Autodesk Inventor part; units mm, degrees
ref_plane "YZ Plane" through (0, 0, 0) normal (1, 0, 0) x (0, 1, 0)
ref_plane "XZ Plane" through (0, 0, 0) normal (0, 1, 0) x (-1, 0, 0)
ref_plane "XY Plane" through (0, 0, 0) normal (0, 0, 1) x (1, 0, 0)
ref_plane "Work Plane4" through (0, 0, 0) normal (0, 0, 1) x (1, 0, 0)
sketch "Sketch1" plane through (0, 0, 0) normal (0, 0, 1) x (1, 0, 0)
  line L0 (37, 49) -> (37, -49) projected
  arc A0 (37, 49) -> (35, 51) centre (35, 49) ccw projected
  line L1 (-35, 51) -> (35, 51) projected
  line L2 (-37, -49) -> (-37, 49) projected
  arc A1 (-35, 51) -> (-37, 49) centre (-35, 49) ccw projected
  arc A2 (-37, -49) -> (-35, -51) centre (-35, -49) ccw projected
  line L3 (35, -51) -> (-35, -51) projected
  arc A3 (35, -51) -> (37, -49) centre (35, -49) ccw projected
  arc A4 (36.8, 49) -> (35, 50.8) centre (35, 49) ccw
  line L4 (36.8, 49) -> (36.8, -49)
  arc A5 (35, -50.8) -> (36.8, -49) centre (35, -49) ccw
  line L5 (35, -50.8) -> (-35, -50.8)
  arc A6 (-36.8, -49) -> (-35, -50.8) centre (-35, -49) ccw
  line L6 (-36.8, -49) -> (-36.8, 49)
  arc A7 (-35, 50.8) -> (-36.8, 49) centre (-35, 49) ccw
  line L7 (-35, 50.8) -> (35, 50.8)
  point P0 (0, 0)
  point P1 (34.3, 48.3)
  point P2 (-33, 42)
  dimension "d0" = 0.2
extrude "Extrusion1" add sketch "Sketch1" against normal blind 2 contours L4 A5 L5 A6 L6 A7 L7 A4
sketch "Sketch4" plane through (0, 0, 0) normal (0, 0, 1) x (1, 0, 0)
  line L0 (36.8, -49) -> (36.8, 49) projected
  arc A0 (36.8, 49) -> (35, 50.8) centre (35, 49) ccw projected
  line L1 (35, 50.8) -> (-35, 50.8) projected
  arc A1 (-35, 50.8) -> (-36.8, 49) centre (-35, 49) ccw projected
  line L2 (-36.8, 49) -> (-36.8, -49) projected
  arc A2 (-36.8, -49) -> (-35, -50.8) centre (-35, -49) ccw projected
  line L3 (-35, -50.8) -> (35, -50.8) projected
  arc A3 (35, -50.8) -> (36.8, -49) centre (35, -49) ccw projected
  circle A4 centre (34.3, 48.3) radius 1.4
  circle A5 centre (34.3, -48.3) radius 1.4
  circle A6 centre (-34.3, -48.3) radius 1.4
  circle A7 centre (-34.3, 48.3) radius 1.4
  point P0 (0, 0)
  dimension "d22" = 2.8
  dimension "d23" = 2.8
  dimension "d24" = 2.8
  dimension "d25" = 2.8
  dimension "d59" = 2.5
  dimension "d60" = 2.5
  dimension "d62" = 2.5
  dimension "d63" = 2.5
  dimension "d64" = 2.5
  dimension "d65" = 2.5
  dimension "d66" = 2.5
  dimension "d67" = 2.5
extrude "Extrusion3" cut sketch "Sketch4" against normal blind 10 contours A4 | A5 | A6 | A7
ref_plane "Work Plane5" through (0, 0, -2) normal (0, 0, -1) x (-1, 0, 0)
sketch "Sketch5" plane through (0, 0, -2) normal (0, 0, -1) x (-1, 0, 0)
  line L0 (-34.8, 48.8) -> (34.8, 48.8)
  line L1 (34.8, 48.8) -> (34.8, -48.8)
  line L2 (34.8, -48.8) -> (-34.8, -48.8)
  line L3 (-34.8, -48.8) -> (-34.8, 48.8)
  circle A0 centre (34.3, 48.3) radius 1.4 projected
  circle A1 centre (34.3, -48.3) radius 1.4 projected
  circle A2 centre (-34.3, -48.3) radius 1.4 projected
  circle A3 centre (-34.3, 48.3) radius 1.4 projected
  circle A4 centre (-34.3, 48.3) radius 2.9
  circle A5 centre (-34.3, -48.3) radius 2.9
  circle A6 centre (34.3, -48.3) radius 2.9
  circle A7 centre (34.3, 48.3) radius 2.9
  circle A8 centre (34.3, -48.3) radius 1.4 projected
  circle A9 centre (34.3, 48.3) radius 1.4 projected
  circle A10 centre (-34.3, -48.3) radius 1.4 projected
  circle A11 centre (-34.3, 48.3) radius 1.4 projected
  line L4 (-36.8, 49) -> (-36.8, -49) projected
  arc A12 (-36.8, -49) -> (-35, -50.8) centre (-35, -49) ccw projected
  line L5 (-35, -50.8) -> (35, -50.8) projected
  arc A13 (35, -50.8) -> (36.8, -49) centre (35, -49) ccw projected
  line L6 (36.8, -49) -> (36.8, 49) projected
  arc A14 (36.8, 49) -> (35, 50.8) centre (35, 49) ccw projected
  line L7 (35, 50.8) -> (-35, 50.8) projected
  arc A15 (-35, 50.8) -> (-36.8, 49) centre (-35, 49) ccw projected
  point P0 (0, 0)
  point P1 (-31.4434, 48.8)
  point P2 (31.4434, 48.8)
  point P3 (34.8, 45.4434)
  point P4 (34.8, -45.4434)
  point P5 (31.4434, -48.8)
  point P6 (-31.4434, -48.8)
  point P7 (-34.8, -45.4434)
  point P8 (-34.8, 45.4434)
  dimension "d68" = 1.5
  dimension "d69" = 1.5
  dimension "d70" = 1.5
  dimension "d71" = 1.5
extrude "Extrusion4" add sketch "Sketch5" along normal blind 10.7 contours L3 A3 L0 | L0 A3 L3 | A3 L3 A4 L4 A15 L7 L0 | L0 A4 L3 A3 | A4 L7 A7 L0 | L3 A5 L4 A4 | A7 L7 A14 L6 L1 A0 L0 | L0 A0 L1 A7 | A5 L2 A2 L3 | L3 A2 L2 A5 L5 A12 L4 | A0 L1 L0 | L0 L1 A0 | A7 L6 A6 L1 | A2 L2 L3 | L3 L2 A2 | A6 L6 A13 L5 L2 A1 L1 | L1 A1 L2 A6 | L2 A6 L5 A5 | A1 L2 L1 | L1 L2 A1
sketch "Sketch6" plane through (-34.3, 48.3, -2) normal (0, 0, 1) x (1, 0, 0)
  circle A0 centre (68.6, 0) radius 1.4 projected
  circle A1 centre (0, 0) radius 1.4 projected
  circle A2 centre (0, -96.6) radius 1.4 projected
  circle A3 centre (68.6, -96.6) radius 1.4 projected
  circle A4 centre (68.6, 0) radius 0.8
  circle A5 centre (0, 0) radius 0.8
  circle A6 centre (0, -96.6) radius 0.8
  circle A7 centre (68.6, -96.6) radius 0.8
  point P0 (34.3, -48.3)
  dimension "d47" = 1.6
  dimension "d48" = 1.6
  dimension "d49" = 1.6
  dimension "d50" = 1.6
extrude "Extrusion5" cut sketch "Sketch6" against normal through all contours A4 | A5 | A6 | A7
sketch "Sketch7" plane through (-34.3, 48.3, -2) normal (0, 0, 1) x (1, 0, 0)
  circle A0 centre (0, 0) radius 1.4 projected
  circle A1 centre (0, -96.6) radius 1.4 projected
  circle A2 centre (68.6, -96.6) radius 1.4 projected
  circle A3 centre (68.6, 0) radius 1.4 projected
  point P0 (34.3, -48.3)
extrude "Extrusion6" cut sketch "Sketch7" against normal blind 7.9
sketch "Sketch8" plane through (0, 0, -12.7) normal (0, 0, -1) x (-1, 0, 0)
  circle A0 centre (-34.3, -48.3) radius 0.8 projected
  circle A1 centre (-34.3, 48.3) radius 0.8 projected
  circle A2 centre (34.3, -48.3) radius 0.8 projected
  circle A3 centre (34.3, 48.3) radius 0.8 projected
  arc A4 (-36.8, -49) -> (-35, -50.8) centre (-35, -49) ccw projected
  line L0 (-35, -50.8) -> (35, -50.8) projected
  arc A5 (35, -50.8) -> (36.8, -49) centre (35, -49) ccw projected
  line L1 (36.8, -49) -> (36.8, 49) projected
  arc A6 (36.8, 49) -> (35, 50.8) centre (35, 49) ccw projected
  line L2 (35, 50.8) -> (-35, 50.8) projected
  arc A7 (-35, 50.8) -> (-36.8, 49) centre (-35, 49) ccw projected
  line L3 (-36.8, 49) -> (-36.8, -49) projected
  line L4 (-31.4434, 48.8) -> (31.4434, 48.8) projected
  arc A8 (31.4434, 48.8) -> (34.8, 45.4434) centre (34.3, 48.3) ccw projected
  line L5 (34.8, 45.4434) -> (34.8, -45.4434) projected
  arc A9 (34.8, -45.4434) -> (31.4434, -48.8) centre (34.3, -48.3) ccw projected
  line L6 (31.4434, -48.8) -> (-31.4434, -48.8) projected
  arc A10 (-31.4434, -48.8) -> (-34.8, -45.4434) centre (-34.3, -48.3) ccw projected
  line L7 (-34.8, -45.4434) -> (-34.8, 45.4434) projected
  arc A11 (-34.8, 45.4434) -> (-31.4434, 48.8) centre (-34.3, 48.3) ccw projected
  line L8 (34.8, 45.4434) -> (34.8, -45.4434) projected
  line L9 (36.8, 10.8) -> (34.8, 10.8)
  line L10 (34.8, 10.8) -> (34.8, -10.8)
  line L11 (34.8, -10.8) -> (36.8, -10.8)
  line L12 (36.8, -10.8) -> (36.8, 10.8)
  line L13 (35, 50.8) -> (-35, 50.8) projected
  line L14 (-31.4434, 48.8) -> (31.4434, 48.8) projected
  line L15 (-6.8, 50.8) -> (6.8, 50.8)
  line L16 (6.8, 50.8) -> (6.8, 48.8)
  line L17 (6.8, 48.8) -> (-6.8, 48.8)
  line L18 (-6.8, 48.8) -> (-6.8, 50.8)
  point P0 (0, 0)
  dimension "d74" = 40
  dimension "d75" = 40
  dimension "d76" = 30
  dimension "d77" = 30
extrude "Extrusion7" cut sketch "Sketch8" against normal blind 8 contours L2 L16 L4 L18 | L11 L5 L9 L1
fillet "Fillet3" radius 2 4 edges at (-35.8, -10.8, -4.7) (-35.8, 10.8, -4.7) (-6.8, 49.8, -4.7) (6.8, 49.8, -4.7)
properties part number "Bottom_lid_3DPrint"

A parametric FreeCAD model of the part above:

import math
import FreeCAD as App
import Part
import Sketcher

V = App.Vector


def edges_at(feature, points):
    """Names of the edges that pass closest to the given points."""
    edges = feature.Shape.Edges
    near = lambda p: min(range(len(edges)), key=lambda i: edges[i].distToShape(Part.Vertex(*p))[0])
    return sorted({f"Edge{near(p) + 1}" for p in points})


def add_polygon(sketch, points):
    """Adds a closed chain of lines whose ends are joined by coincident constraints."""
    first, n = sketch.GeometryCount, len(points)
    for a, b in zip(points, points[1:] + points[:1]):
        sketch.addGeometry(Part.LineSegment(App.Vector(*a, 0), App.Vector(*b, 0)), False)
    for i in range(n):
        sketch.addConstraint(Sketcher.Constraint("Coincident", first + i, 2, first + (i + 1) % n, 1))

doc = App.newDocument("Part")
body = doc.addObject("PartDesign::Body", "Body")

sketch1 = body.newObject("Sketcher::SketchObject", "Sketch")
sketch1.AttachmentSupport = (doc.getObject("XY_Plane"), [""])
sketch1.MapMode = "FlatFace"
sketch1.addGeometry([
    Part.LineSegment(V(36.8, -49, 0), V(36.8, 49, 0)),
    Part.ArcOfCircle(Part.Circle(V(35, 49, 0), V(0, 0, 1), 1.8), math.radians(0), math.radians(90)),
    Part.LineSegment(V(35, 50.8, 0), V(-35, 50.8, 0)),
    Part.ArcOfCircle(Part.Circle(V(-35, 49, 0), V(0, 0, 1), 1.8), math.radians(90), math.radians(180)),
    Part.LineSegment(V(-36.8, 49, 0), V(-36.8, -49, 0)),
    Part.ArcOfCircle(Part.Circle(V(-35, -49, 0), V(0, 0, 1), 1.8), math.radians(180), math.radians(270)),
    Part.LineSegment(V(-35, -50.8, 0), V(35, -50.8, 0)),
    Part.ArcOfCircle(Part.Circle(V(35, -49, 0), V(0, 0, 1), 1.8), math.radians(-90), math.radians(0)),
], False)
sketch1.addConstraint([
    Sketcher.Constraint("Tangent", 0, 2, 1, 1),
    Sketcher.Constraint("Tangent", 1, 2, 2, 1),
    Sketcher.Constraint("Tangent", 2, 2, 3, 1),
    Sketcher.Constraint("Tangent", 3, 2, 4, 1),
    Sketcher.Constraint("Tangent", 4, 2, 5, 1),
    Sketcher.Constraint("Tangent", 5, 2, 6, 1),
    Sketcher.Constraint("Tangent", 6, 2, 7, 1),
    Sketcher.Constraint("Tangent", 7, 2, 0, 1),
    Sketcher.Constraint("Vertical", 0),
    Sketcher.Constraint("Horizontal", 2),
    Sketcher.Constraint("Vertical", 4),
    Sketcher.Constraint("Horizontal", 6),
    Sketcher.Constraint("Equal", 1, 3),
    Sketcher.Constraint("Equal", 3, 5),
    Sketcher.Constraint("Equal", 5, 7),
    Sketcher.Constraint("Symmetric", 1, 3, 5, 3, -1, 1),
    Sketcher.Constraint("Radius", 1, 1.8),
    Sketcher.Constraint("DistanceX", 2, 2, 2, 1, 70.0),
    Sketcher.Constraint("DistanceY", 0, 1, 0, 2, 98.0),
])
pad1 = body.newObject("PartDesign::Pad", "Pad")
pad1.Profile = sketch1
pad1.Length = 2
pad1.Reversed = True

sketch2 = body.newObject("Sketcher::SketchObject", "Sketch001")
sketch2.AttachmentSupport = (doc.getObject("XY_Plane"), [""])
sketch2.MapMode = "FlatFace"
sketch2.addGeometry([
    Part.Circle(V(34.3, 48.3, 0), V(0, 0, 1), 1.4),
    Part.Circle(V(34.3, -48.3, 0), V(0, 0, 1), 1.4),
    Part.Circle(V(-34.3, -48.3, 0), V(0, 0, 1), 1.4),
    Part.Circle(V(-34.3, 48.3, 0), V(0, 0, 1), 1.4),
], False)
sketch2.addConstraint([
    Sketcher.Constraint("Equal", 0, 1),
    Sketcher.Constraint("Equal", 1, 2),
    Sketcher.Constraint("Equal", 2, 3),
    Sketcher.Constraint("Symmetric", 0, 3, 2, 3, -1, 1),
    Sketcher.Constraint("Symmetric", 1, 3, 3, 3, -1, 1),
    Sketcher.Constraint("Symmetric", 1, 3, 2, 3, -2),
    Sketcher.Constraint("Diameter", 0, 2.8),
    Sketcher.Constraint("DistanceX", -1, 1, 0, 3, 34.3),
    Sketcher.Constraint("DistanceY", -1, 1, 0, 3, 48.3),
])
pocket1 = body.newObject("PartDesign::Pocket", "Pocket")
pocket1.Profile = sketch2
pocket1.Length = 10

sketch3 = body.newObject("Sketcher::SketchObject", "Sketch002")
sketch3.AttachmentSupport = (doc.getObject("XY_Plane"), [""])
sketch3.MapMode = "FlatFace"
sketch3.AttachmentOffset = App.Placement(V(0, 0, -2), App.Rotation())
sketch3.addGeometry([
    Part.LineSegment(V(36.8, 49, 0), V(36.8, -49, 0)),
    Part.ArcOfCircle(Part.Circle(V(35, -49, 0), V(0, 0, 1), 1.8), math.radians(-90), math.radians(0)),
    Part.LineSegment(V(35, -50.8, 0), V(-35, -50.8, 0)),
    Part.ArcOfCircle(Part.Circle(V(-35, -49, 0), V(0, 0, 1), 1.8), math.radians(180), math.radians(270)),
    Part.LineSegment(V(-36.8, -49, 0), V(-36.8, 49, 0)),
    Part.ArcOfCircle(Part.Circle(V(-35, 49, 0), V(0, 0, 1), 1.8), math.radians(90), math.radians(180)),
    Part.LineSegment(V(-35, 50.8, 0), V(35, 50.8, 0)),
    Part.ArcOfCircle(Part.Circle(V(35, 49, 0), V(0, 0, 1), 1.8), math.radians(0), math.radians(90)),
    Part.ArcOfCircle(Part.Circle(V(34.3, 48.3, 0), V(0, 0, 1), 2.9), math.radians(170.071808), math.radians(279.928192)),
    Part.LineSegment(V(31.443429, 48.8, 0), V(-31.443429, 48.8, 0)),
    Part.ArcOfCircle(Part.Circle(V(-34.3, 48.3, 0), V(0, 0, 1), 2.9), math.radians(-99.928192), math.radians(9.928192)),
    Part.LineSegment(V(-34.8, 45.443429, 0), V(-34.8, -45.443429, 0)),
    Part.ArcOfCircle(Part.Circle(V(-34.3, -48.3, 0), V(0, 0, 1), 2.9), math.radians(-9.928192), math.radians(99.928192)),
    Part.LineSegment(V(-31.443429, -48.8, 0), V(31.443429, -48.8, 0)),
    Part.ArcOfCircle(Part.Circle(V(34.3, -48.3, 0), V(0, 0, 1), 2.9), math.radians(80.071808), math.radians(189.928192)),
    Part.LineSegment(V(34.8, -45.443429, 0), V(34.8, 45.443429, 0)),
], False)
sketch3.addConstraint([
    Sketcher.Constraint("Tangent", 0, 2, 1, 2),
    Sketcher.Constraint("Tangent", 1, 1, 2, 1),
    Sketcher.Constraint("Tangent", 2, 2, 3, 2),
    Sketcher.Constraint("Tangent", 3, 1, 4, 1),
    Sketcher.Constraint("Tangent", 4, 2, 5, 2),
    Sketcher.Constraint("Tangent", 5, 1, 6, 1),
    Sketcher.Constraint("Tangent", 6, 2, 7, 2),
    Sketcher.Constraint("Tangent", 7, 1, 0, 1),
    Sketcher.Constraint("Coincident", 8, 1, 9, 1),
    Sketcher.Constraint("Coincident", 9, 2, 10, 2),
    Sketcher.Constraint("Coincident", 10, 1, 11, 1),
    Sketcher.Constraint("Coincident", 11, 2, 12, 2),
    Sketcher.Constraint("Coincident", 12, 1, 13, 1),
    Sketcher.Constraint("Coincident", 13, 2, 14, 2),
    Sketcher.Constraint("Coincident", 14, 1, 15, 1),
    Sketcher.Constraint("Coincident", 15, 2, 8, 2),
    Sketcher.Constraint("Vertical", 0),
    Sketcher.Constraint("Horizontal", 2),
    Sketcher.Constraint("Vertical", 4),
    Sketcher.Constraint("Horizontal", 6),
    Sketcher.Constraint("Horizontal", 9),
    Sketcher.Constraint("Vertical", 11),
    Sketcher.Constraint("Horizontal", 13),
    Sketcher.Constraint("Vertical", 15),
    Sketcher.Constraint("Equal", 1, 3),
    Sketcher.Constraint("Equal", 3, 5),
    Sketcher.Constraint("Equal", 5, 7),
    Sketcher.Constraint("Equal", 8, 10),
    Sketcher.Constraint("Equal", 10, 12),
    Sketcher.Constraint("Equal", 12, 14),
    Sketcher.Constraint("Symmetric", 1, 3, 5, 3, -1, 1),
    Sketcher.Constraint("Symmetric", 8, 3, 12, 3, -1, 1),
    Sketcher.Constraint("Symmetric", 10, 3, 14, 3, -1, 1),
    Sketcher.Constraint("Symmetric", 8, 3, 10, 3, -2),
    Sketcher.Constraint("Horizontal", 11, 2, 14, 1),
    Sketcher.Constraint("Vertical", 9, 2, 12, 1),
    Sketcher.Constraint("Radius", 1, 1.8),
    Sketcher.Constraint("Radius", 8, 2.9),
    Sketcher.Constraint("DistanceX", 2, 2, 2, 1, 70.0),
    Sketcher.Constraint("DistanceY", 0, 2, 0, 1, 98.0),
    Sketcher.Constraint("DistanceY", 8, 1, 6, 2, 2.0),
    Sketcher.Constraint("DistanceX", 4, 2, 10, 1, 2.0),
    Sketcher.Constraint("DistanceX", -1, 1, 8, 3, 34.3),
    Sketcher.Constraint("DistanceY", -1, 1, 8, 3, 48.3),
])
pad2 = body.newObject("PartDesign::Pad", "Pad001")
pad2.Profile = sketch3
pad2.Length = 10.7
pad2.Reversed = True

sketch4 = body.newObject("Sketcher::SketchObject", "Sketch003")
sketch4.AttachmentSupport = (doc.getObject("XY_Plane"), [""])
sketch4.MapMode = "FlatFace"
sketch4.AttachmentOffset = App.Placement(V(0, 0, -2), App.Rotation())
sketch4.addGeometry([
    Part.Circle(V(34.3, 48.3, 0), V(0, 0, 1), 0.8),
    Part.Circle(V(-34.3, 48.3, 0), V(0, 0, 1), 0.8),
    Part.Circle(V(-34.3, -48.3, 0), V(0, 0, 1), 0.8),
    Part.Circle(V(34.3, -48.3, 0), V(0, 0, 1), 0.8),
], False)
sketch4.addConstraint([
    Sketcher.Constraint("Equal", 0, 1),
    Sketcher.Constraint("Equal", 1, 2),
    Sketcher.Constraint("Equal", 2, 3),
    Sketcher.Constraint("Symmetric", 0, 3, 2, 3, -1, 1),
    Sketcher.Constraint("Symmetric", 1, 3, 3, 3, -1, 1),
    Sketcher.Constraint("Symmetric", 0, 3, 1, 3, -2),
    Sketcher.Constraint("Diameter", 0, 1.6),
    Sketcher.Constraint("DistanceX", -1, 1, 0, 3, 34.3),
    Sketcher.Constraint("DistanceY", -1, 1, 0, 3, 48.3),
])
pocket2 = body.newObject("PartDesign::Pocket", "Pocket001")
pocket2.Profile = sketch4
pocket2.Type = "ThroughAll"

sketch5 = body.newObject("Sketcher::SketchObject", "Sketch004")
sketch5.AttachmentSupport = (doc.getObject("XY_Plane"), [""])
sketch5.MapMode = "FlatFace"
sketch5.AttachmentOffset = App.Placement(V(0, 0, -2), App.Rotation())
sketch5.addGeometry([
    Part.Circle(V(-34.3, 48.3, 0), V(0, 0, 1), 1.4),
    Part.Circle(V(-34.3, -48.3, 0), V(0, 0, 1), 1.4),
    Part.Circle(V(34.3, -48.3, 0), V(0, 0, 1), 1.4),
    Part.Circle(V(34.3, 48.3, 0), V(0, 0, 1), 1.4),
], False)
sketch5.addConstraint([
    Sketcher.Constraint("Equal", 0, 1),
    Sketcher.Constraint("Equal", 1, 2),
    Sketcher.Constraint("Equal", 2, 3),
    Sketcher.Constraint("Symmetric", 0, 3, 2, 3, -1, 1),
    Sketcher.Constraint("Symmetric", 1, 3, 3, 3, -1, 1),
    Sketcher.Constraint("Symmetric", 1, 3, 2, 3, -2),
    Sketcher.Constraint("Diameter", 0, 2.8),
    Sketcher.Constraint("DistanceX", 0, 3, -1, 1, 34.3),
    Sketcher.Constraint("DistanceY", -1, 1, 0, 3, 48.3),
])
pocket3 = body.newObject("PartDesign::Pocket", "Pocket002")
pocket3.Profile = sketch5
pocket3.Length = 7.9

sketch6 = body.newObject("Sketcher::SketchObject", "Sketch005")
sketch6.AttachmentSupport = (doc.getObject("XY_Plane"), [""])
sketch6.MapMode = "FlatFace"
sketch6.AttachmentOffset = App.Placement(V(0, 0, -12.7), App.Rotation())
add_polygon(sketch6, [(-6.8, 50.8), (6.8, 50.8), (6.8, 48.8), (-6.8, 48.8)])
add_polygon(sketch6, [(-34.8, -10.8), (-36.8, -10.8), (-36.8, 10.8), (-34.8, 10.8)])
sketch6.addConstraint([
    Sketcher.Constraint("Horizontal", 0),
    Sketcher.Constraint("Vertical", 1),
    Sketcher.Constraint("Horizontal", 2),
    Sketcher.Constraint("Vertical", 3),
    Sketcher.Constraint("Horizontal", 4),
    Sketcher.Constraint("Vertical", 5),
    Sketcher.Constraint("Horizontal", 6),
    Sketcher.Constraint("Vertical", 7),
    Sketcher.Constraint("Equal", 6, 1),
    Sketcher.Constraint("DistanceX", 4, 2, 2, 2, 30.0),
    Sketcher.Constraint("DistanceY", 5, 2, 3, 2, 40.0),
    Sketcher.Constraint("DistanceX", 4, 2, 4, 1, 2.0),
    Sketcher.Constraint("DistanceX", 0, 1, 0, 2, 13.6),
    Sketcher.Constraint("DistanceY", 5, 1, 5, 2, 21.6),
    Sketcher.Constraint("DistanceX", -1, 1, 0, 2, 6.8),
    Sketcher.Constraint("DistanceY", -1, 1, 0, 2, 50.8),
])
pocket4 = body.newObject("PartDesign::Pocket", "Pocket003")
pocket4.Profile = sketch6
pocket4.Length = 8
pocket4.Reversed = True
doc.recompute()

fillet = body.newObject("PartDesign::Fillet", "Fillet")
fillet.Base = (pocket4, edges_at(pocket4, [
    (-35.8, -10.8, -4.7),
    (-35.8, 10.8, -4.7),
    (-6.8, 49.8, -4.7),
    (6.8, 49.8, -4.7),
]))
fillet.Radius = 2

doc.recompute()
